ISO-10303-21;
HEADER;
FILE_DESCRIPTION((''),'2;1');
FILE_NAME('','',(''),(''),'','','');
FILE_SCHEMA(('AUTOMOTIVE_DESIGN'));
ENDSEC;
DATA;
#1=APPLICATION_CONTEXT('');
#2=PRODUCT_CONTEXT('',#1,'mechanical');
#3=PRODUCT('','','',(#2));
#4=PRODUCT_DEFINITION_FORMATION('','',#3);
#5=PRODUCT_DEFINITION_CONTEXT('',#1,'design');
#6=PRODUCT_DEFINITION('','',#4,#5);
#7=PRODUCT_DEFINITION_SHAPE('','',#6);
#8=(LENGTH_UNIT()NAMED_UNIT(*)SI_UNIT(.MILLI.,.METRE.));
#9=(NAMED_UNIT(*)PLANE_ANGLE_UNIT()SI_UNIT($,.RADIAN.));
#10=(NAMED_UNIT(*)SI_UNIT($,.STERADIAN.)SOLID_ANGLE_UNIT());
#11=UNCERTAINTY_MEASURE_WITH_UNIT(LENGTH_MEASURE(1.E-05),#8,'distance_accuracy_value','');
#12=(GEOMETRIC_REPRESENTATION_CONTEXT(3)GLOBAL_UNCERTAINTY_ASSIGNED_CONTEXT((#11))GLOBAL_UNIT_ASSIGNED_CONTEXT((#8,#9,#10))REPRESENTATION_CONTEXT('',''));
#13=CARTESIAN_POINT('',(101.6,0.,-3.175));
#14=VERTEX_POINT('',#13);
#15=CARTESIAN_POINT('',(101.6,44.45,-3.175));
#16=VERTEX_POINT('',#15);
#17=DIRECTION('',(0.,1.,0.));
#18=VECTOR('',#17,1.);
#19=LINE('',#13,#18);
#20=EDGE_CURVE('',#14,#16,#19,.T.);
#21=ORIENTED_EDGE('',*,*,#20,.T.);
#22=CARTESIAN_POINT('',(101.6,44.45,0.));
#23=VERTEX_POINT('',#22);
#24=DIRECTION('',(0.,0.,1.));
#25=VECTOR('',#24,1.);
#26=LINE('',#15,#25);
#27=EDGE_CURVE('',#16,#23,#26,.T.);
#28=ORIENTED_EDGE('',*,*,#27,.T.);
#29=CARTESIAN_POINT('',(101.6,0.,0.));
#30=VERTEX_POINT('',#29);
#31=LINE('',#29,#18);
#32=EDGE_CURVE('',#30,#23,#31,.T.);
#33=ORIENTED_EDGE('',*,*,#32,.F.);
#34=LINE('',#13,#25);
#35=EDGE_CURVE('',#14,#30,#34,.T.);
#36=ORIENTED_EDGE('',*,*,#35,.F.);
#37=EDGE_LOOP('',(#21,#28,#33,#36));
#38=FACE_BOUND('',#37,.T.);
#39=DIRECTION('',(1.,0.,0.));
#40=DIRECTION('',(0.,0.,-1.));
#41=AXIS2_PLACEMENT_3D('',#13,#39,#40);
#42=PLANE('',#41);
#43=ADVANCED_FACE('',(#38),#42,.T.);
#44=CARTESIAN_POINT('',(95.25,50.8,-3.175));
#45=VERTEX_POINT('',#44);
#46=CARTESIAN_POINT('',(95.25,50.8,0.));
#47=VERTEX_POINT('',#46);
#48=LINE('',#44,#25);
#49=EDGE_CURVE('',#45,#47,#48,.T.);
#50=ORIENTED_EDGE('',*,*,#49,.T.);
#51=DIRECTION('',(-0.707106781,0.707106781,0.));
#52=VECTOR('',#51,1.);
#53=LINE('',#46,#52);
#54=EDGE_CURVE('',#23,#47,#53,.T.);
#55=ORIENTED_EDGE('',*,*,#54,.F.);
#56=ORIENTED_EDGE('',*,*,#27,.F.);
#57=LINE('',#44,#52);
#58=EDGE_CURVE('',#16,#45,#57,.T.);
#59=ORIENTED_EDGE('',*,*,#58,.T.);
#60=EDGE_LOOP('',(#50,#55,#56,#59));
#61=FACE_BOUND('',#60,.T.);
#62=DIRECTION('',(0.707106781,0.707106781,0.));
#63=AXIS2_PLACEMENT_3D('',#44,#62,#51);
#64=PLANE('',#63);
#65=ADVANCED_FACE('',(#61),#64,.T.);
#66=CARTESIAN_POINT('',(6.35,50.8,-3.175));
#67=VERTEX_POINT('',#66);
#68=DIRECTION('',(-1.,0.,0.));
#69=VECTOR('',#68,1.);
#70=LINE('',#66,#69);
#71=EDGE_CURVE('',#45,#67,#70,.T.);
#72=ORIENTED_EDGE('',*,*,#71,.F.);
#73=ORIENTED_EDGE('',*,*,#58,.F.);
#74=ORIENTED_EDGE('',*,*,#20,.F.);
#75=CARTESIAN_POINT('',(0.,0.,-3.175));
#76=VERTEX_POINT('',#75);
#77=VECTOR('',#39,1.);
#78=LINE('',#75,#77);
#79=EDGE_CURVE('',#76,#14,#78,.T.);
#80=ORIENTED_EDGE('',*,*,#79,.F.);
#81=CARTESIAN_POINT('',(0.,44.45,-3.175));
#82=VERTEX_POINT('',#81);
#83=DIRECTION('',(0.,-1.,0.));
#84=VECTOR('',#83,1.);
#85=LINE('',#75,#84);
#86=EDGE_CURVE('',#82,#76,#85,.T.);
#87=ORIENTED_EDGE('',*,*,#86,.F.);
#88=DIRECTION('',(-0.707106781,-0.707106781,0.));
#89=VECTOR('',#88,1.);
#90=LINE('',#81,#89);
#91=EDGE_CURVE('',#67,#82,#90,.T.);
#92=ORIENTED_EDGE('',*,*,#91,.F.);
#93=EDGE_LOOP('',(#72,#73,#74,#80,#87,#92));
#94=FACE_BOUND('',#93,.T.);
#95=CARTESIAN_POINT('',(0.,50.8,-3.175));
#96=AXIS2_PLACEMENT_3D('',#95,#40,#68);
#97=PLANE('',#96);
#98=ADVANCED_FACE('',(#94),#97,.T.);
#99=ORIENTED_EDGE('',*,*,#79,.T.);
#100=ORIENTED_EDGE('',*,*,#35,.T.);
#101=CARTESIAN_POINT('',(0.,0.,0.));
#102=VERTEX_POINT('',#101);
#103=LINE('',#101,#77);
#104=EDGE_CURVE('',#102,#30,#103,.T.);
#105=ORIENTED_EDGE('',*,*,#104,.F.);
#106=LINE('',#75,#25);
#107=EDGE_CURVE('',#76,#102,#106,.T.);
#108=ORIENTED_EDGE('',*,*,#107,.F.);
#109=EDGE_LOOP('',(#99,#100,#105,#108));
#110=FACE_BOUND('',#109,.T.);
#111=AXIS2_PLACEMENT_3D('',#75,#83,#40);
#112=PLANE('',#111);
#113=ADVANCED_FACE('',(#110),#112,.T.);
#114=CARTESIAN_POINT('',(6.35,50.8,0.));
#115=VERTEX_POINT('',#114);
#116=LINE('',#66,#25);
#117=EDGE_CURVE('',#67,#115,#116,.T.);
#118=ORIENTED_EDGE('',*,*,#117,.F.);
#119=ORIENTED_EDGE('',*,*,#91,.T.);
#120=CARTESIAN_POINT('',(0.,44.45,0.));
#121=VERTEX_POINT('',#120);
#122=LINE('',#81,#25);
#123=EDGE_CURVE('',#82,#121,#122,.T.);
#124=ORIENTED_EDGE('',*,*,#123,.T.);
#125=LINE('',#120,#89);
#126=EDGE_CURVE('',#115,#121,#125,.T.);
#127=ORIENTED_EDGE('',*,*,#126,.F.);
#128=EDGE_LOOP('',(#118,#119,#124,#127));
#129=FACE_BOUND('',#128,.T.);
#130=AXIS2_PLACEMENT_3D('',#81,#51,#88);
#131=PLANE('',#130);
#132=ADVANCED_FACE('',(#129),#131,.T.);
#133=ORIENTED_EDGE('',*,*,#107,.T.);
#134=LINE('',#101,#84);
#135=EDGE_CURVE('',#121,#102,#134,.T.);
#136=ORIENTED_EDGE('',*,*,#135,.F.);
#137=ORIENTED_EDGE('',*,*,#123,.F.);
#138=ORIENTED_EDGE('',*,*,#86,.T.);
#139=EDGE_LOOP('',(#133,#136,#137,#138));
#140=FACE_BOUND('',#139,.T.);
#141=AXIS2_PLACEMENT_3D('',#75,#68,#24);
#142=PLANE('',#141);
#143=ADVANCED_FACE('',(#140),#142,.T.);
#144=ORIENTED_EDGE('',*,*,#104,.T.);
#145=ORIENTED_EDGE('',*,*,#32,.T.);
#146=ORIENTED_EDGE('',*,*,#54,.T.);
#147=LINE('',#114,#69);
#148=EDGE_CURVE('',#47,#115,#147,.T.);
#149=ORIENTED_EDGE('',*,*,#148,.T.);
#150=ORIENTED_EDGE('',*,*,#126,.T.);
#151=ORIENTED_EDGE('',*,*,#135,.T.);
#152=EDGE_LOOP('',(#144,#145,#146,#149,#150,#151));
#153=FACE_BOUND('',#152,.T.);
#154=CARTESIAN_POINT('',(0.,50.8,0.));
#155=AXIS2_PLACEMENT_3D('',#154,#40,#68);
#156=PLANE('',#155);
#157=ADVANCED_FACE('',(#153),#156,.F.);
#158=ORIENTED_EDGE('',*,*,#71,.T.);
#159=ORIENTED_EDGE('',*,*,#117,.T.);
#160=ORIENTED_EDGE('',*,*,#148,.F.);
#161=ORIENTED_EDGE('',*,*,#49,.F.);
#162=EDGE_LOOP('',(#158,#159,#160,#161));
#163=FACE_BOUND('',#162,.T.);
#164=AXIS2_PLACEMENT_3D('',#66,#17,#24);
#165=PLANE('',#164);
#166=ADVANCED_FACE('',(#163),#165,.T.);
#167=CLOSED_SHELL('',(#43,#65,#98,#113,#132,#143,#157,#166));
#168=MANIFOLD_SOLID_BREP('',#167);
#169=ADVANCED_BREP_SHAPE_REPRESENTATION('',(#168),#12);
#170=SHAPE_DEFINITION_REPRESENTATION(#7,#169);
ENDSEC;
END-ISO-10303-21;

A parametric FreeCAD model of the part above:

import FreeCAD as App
import Part
import Sketcher
from FreeCAD import Vector
Q = App.Units.Quantity


def add_polygon(sketch, points):
    """Adds a closed chain of lines whose ends are joined by coincident constraints."""
    first, n = sketch.GeometryCount, len(points)
    for a, b in zip(points, points[1:] + points[:1]):
        sketch.addGeometry(Part.LineSegment(App.Vector(*a, 0), App.Vector(*b, 0)), False)
    for i in range(n):
        sketch.addConstraint(Sketcher.Constraint("Coincident", first + i, 2, first + (i + 1) % n, 1))

doc = App.newDocument("Part")
params = doc.addObject("Spreadsheet::Sheet", "Params")
for row, (alias, value) in enumerate([
    ("sketch1_width", "4 in"),
    ("sketch1_width2", "3.5 in"),
    ("pad1_length", "0.125 in"),
], start=1):
    params.set(f"A{row}", alias)
    params.set(f"B{row}", "=" + value)
    params.setAlias(f"B{row}", alias)

body = doc.addObject("PartDesign::Body", "Body")

sketch1 = body.newObject("Sketcher::SketchObject", "Sketch")
sketch1.AttachmentSupport = (doc.getObject("XY_Plane"), [""])
sketch1.MapMode = "FlatFace"
add_polygon(sketch1, [(6, 51), (0, 44), (0, 0), (102, 0), (102, 44), (95, 51)])
sketch1.addConstraint([
    Sketcher.Constraint("Vertical", 1),
    Sketcher.Constraint("Horizontal", 2),
    Sketcher.Constraint("Vertical", 3),
    Sketcher.Constraint("Horizontal", 5),
    Sketcher.Constraint("Coincident", 1, 2, -1, 1),
    Sketcher.Constraint("Perpendicular", 0, 4),
    Sketcher.Constraint("Horizontal", 0, 2, 3, 2),
    Sketcher.Constraint("Equal", 0, 4),
    Sketcher.Constraint("DistanceX", 2, 1, 2, 2, Q("4 in")),
    Sketcher.Constraint("DistanceX", 5, 2, 5, 1, Q("3.5 in")),
    Sketcher.Constraint("DistanceY", -1, 1, 4, 2, Q("2 in")),
])
sketch1.setExpression("Constraints[14]", "Params.sketch1_width")
sketch1.setExpression("Constraints[15]", "Params.sketch1_width2")
pad1 = body.newObject("PartDesign::Pad", "Pad")
pad1.Profile = sketch1
pad1.setExpression("Length", "Params.pad1_length")
pad1.Reversed = True

doc.recompute()
